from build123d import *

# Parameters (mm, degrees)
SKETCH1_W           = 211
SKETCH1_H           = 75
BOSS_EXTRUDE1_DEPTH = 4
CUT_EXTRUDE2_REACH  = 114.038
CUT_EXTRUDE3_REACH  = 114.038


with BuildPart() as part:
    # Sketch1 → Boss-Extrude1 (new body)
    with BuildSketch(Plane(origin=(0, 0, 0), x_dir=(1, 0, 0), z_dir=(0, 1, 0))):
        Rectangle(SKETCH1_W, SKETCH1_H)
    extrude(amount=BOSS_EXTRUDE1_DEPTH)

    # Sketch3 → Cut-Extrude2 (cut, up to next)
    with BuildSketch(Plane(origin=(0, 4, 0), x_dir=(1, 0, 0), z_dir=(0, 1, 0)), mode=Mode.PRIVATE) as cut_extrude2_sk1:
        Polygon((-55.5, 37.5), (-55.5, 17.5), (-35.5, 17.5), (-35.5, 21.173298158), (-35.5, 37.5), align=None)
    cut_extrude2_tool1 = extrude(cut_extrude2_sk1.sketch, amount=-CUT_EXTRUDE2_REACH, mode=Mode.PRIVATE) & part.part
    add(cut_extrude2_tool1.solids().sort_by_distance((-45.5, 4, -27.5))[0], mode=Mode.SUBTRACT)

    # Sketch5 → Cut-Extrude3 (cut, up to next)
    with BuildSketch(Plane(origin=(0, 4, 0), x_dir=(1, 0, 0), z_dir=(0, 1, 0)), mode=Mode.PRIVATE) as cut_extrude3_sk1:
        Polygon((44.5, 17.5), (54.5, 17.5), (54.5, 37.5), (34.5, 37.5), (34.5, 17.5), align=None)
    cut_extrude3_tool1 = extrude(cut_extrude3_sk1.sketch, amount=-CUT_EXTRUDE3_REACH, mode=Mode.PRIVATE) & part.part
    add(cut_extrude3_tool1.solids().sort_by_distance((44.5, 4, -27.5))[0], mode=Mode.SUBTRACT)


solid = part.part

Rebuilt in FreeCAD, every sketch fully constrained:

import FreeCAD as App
import Part
import Sketcher


def add_polygon(sketch, points):
    """Adds a closed chain of lines whose ends are joined by coincident constraints."""
    first, n = sketch.GeometryCount, len(points)
    for a, b in zip(points, points[1:] + points[:1]):
        sketch.addGeometry(Part.LineSegment(App.Vector(*a, 0), App.Vector(*b, 0)), False)
    for i in range(n):
        sketch.addConstraint(Sketcher.Constraint("Coincident", first + i, 2, first + (i + 1) % n, 1))

doc = App.newDocument("Part")
params = doc.addObject("Spreadsheet::Sheet", "Params")
for row, (alias, value) in enumerate([
    ("sketch1_width", "211 mm"),
    ("sketch1_height", "75 mm"),
    ("pad1_length", "4 mm"),
    ("sketch2_width", "20 mm"),
    ("sketch3_width", "20 mm"),
], start=1):
    params.set(f"A{row}", alias)
    params.set(f"B{row}", "=" + value)
    params.setAlias(f"B{row}", alias)

body = doc.addObject("PartDesign::Body", "Body")

# Sketch on XZ plane
sketch1 = doc.addObject("Sketcher::SketchObject", "Sketch")
body.addObject(sketch1)
sketch1.AttachmentSupport = (doc.XZ_Plane, [""])
sketch1.MapMode = "FlatFace"
add_polygon(sketch1, [(-106, -38), (-106, 38), (106, 38), (106, -38)])  # lines 0-3
sketch1.addConstraint([
    Sketcher.Constraint("Vertical", 0),
    Sketcher.Constraint("Horizontal", 1),
    Sketcher.Constraint("Vertical", 2),
    Sketcher.Constraint("Horizontal", 3),
    Sketcher.Constraint("Symmetric", 0, 2, 2, 2, -1, 1),
    Sketcher.Constraint("DistanceX", 1, 1, 1, 2, 211.0),
    Sketcher.Constraint("DistanceY", 0, 1, 0, 2, 75.0),
])
sketch1.setExpression("Constraints[9]", "Params.sketch1_width")
sketch1.setExpression("Constraints[10]", "Params.sketch1_height")
pad1 = doc.addObject("PartDesign::Pad", "Pad")
body.addObject(pad1)
pad1.Profile = sketch1
pad1.setExpression("Length", "Params.pad1_length")
pad1.Reversed = True

# Sketch on XZ plane
sketch2 = doc.addObject("Sketcher::SketchObject", "Sketch001")
body.addObject(sketch2)
sketch2.AttachmentSupport = (doc.XZ_Plane, [""])
sketch2.MapMode = "FlatFace"
sketch2.AttachmentOffset = App.Placement(App.Vector(0, 0, -4), App.Rotation())
add_polygon(sketch2, [(-56, -38), (-56, -18), (-36, -18), (-36, -38)])  # lines 0-3
sketch2.addConstraint([
    Sketcher.Constraint("Vertical", 0),
    Sketcher.Constraint("Horizontal", 1),
    Sketcher.Constraint("Vertical", 2),
    Sketcher.Constraint("Horizontal", 3),
    Sketcher.Constraint("Equal", 3, 0),
    Sketcher.Constraint("DistanceX", 1, 1, 1, 2, 20.0),
    Sketcher.Constraint("DistanceX", 0, 2, -1, 1, 55.5),
    Sketcher.Constraint("DistanceY", 0, 2, -1, 1, 17.5),
])
sketch2.setExpression("Constraints[9]", "Params.sketch2_width")
pocket1 = doc.addObject("PartDesign::Pocket", "Pocket")
body.addObject(pocket1)
pocket1.Profile = sketch2
pocket1.Type = "UpToFirst"
pocket1.Reversed = True

# Sketch on XZ plane
sketch3 = doc.addObject("Sketcher::SketchObject", "Sketch002")
body.addObject(sketch3)
sketch3.AttachmentSupport = (doc.XZ_Plane, [""])
sketch3.MapMode = "FlatFace"
sketch3.AttachmentOffset = App.Placement(App.Vector(0, 0, -4), App.Rotation())
add_polygon(sketch3, [(54, -18), (54, -38), (34, -38), (34, -18)])  # lines 0-3
sketch3.addConstraint([
    Sketcher.Constraint("Vertical", 0),
    Sketcher.Constraint("Horizontal", 1),
    Sketcher.Constraint("Vertical", 2),
    Sketcher.Constraint("Horizontal", 3),
    Sketcher.Constraint("Equal", 3, 0),
    Sketcher.Constraint("DistanceX", 1, 2, 1, 1, 20.0),
    Sketcher.Constraint("DistanceX", -1, 1, 0, 2, 54.5),
    Sketcher.Constraint("DistanceY", 0, 2, -1, 1, 37.5),
])
sketch3.setExpression("Constraints[9]", "Params.sketch3_width")
pocket2 = doc.addObject("PartDesign::Pocket", "Pocket001")
body.addObject(pocket2)
pocket2.Profile = sketch3
pocket2.Type = "UpToFirst"
pocket2.Reversed = True

doc.recompute()
